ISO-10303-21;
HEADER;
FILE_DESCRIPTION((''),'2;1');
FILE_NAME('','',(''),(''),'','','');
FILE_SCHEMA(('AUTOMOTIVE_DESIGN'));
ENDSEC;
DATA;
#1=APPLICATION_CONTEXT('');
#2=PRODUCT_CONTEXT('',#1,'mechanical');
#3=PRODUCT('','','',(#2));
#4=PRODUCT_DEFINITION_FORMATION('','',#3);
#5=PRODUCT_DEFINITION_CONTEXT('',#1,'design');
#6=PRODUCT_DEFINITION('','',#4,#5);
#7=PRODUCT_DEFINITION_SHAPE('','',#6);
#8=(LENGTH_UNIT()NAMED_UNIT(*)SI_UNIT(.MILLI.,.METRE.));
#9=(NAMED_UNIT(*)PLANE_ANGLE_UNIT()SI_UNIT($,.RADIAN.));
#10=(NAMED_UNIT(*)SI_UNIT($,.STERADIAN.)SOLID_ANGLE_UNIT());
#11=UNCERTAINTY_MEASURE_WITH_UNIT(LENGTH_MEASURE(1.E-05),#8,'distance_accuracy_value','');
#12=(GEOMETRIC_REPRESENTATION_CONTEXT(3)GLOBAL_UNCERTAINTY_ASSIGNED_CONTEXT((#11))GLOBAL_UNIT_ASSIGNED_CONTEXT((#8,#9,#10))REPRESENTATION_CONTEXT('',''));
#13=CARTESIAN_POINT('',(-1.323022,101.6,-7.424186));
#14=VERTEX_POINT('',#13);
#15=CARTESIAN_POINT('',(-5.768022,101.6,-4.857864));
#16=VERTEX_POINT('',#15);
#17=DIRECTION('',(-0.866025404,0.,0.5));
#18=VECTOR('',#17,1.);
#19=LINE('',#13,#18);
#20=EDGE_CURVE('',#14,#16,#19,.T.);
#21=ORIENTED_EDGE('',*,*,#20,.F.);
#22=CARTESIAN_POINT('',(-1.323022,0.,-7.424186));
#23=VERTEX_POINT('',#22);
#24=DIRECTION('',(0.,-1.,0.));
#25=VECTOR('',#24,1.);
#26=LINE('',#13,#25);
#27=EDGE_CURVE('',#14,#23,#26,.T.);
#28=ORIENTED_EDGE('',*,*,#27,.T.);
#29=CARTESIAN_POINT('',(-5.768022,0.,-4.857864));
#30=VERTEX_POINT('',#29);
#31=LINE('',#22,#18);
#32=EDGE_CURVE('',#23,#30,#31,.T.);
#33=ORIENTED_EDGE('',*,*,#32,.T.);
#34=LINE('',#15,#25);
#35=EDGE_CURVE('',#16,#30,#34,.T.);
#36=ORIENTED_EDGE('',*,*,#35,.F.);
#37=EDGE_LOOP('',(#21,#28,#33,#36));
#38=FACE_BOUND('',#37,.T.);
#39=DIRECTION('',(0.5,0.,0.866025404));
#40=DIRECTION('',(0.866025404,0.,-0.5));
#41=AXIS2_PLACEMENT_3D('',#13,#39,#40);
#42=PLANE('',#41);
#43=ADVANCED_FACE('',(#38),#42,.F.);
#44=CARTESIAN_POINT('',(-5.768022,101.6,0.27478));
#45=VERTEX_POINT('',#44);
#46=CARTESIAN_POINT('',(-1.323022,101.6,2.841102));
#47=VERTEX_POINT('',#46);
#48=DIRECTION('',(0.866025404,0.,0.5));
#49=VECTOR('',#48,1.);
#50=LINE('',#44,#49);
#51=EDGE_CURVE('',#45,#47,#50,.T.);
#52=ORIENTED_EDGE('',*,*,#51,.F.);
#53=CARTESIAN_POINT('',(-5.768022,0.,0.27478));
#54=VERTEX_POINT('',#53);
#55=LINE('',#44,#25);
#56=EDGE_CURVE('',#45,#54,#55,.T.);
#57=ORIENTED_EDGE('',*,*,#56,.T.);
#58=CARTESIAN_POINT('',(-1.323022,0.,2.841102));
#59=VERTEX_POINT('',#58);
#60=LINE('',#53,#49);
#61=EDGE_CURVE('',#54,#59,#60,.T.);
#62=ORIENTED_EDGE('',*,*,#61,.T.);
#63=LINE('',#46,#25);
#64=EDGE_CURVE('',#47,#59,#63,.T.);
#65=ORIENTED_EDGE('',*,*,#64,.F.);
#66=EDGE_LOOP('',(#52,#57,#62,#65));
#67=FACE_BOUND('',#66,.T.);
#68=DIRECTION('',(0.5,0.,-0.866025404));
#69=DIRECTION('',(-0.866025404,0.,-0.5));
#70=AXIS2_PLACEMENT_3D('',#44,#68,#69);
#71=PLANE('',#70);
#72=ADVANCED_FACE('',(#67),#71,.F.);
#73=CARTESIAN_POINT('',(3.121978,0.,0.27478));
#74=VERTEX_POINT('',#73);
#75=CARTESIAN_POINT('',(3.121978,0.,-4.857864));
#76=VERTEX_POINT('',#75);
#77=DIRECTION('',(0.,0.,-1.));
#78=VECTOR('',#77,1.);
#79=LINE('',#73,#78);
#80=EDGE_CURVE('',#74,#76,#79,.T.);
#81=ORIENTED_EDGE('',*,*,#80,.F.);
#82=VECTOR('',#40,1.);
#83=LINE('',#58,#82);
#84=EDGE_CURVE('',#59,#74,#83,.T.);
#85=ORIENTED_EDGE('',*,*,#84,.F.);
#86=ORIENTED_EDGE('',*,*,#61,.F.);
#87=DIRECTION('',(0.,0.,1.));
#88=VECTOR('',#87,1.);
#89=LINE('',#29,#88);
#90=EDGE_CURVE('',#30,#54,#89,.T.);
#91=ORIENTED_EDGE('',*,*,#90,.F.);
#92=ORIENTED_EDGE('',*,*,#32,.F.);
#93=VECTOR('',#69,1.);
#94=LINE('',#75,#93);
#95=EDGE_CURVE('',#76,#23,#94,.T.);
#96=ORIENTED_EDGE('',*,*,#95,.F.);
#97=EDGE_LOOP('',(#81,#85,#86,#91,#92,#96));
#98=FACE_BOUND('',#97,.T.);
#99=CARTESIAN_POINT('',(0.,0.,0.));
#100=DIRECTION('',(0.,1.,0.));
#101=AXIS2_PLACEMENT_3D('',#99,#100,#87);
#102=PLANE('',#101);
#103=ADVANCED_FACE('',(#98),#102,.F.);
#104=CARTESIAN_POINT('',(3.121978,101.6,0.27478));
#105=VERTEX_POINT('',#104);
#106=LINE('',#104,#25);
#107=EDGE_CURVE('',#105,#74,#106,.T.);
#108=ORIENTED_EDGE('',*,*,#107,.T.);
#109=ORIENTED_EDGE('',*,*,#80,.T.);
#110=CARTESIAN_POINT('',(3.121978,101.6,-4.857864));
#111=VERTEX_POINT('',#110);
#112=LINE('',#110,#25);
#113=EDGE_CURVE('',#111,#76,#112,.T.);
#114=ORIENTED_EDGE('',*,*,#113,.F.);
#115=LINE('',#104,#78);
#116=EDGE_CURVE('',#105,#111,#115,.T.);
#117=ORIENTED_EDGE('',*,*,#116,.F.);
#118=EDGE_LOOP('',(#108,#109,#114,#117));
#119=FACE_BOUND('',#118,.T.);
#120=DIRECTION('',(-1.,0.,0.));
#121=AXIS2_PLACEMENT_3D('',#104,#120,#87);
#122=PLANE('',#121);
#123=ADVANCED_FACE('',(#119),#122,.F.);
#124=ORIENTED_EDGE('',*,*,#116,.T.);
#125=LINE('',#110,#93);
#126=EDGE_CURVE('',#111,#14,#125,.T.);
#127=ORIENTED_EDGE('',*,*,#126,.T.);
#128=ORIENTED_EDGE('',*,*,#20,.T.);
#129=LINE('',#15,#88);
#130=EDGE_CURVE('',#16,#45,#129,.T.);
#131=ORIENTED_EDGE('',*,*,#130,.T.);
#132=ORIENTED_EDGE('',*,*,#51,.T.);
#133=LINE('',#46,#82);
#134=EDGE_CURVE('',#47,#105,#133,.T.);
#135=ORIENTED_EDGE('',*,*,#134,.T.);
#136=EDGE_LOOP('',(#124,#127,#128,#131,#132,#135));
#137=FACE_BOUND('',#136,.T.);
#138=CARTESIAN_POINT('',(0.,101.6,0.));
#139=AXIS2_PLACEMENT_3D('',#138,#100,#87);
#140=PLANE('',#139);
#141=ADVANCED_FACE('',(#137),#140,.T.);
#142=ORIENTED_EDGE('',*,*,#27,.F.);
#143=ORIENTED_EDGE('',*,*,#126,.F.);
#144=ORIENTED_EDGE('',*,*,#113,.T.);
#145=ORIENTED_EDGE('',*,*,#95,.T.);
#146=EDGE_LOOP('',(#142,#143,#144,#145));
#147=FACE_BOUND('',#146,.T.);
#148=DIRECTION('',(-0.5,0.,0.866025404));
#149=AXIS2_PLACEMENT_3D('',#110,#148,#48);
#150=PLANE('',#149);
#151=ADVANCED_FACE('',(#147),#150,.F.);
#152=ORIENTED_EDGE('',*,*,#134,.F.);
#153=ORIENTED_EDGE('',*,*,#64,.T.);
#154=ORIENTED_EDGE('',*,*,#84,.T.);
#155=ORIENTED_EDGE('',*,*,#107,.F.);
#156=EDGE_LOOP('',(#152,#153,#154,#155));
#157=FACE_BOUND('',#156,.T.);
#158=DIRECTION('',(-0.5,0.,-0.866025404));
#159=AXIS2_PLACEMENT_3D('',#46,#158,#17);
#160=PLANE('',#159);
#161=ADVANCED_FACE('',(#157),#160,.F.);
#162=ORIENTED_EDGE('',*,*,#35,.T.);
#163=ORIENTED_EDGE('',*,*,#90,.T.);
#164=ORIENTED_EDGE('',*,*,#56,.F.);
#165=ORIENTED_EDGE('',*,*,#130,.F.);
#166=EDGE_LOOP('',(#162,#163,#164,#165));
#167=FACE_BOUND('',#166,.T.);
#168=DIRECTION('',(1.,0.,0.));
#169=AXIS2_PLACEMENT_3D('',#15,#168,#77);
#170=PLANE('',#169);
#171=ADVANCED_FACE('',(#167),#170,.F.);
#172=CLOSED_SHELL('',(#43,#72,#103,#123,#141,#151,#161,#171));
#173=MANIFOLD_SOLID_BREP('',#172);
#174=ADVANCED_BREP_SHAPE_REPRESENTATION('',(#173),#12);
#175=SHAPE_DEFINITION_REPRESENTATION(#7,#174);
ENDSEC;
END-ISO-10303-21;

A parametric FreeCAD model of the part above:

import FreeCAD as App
import Part
import Sketcher
Q = App.Units.Quantity

doc = App.newDocument("Part")
params = doc.addObject("Spreadsheet::Sheet", "Params")
for row, (alias, value) in enumerate([
    ("pad1_length", "4 in"),
], start=1):
    params.set(f"A{row}", alias)
    params.set(f"B{row}", "=" + value)
    params.setAlias(f"B{row}", alias)

body = doc.addObject("PartDesign::Body", "Body")

# Sketch on XZ plane
sketch1 = doc.addObject("Sketcher::SketchObject", "Sketch")
body.addObject(sketch1)
sketch1.AttachmentSupport = (doc.XZ_Plane, [""])
sketch1.MapMode = "FlatFace"
sketch1.addGeometry(Part.LineSegment(App.Vector(-1, -7, 0), App.Vector(-6, -5, 0)), False)
sketch1.addGeometry(Part.LineSegment(App.Vector(-6, -5, 0), App.Vector(-6, 0, 0)), False)
sketch1.addGeometry(Part.LineSegment(App.Vector(-6, 0, 0), App.Vector(-1, 3, 0)), False)
sketch1.addGeometry(Part.LineSegment(App.Vector(-1, 3, 0), App.Vector(3, 0, 0)), False)
sketch1.addGeometry(Part.LineSegment(App.Vector(3, 0, 0), App.Vector(3, -5, 0)), False)
sketch1.addGeometry(Part.LineSegment(App.Vector(3, -5, 0), App.Vector(-1, -7, 0)), False)
sketch1.addConstraint(Sketcher.Constraint("Coincident", 0, 2, 1, 1))
sketch1.addConstraint(Sketcher.Constraint("Coincident", 1, 2, 2, 1))
sketch1.addConstraint(Sketcher.Constraint("Coincident", 2, 2, 3, 1))
sketch1.addConstraint(Sketcher.Constraint("Coincident", 3, 2, 4, 1))
sketch1.addConstraint(Sketcher.Constraint("Coincident", 4, 2, 5, 1))
sketch1.addConstraint(Sketcher.Constraint("Coincident", 5, 2, 0, 1))
sketch1.addConstraint(Sketcher.Constraint("Vertical", 1))
sketch1.addConstraint(Sketcher.Constraint("Vertical", 4))
sketch1.addConstraint(Sketcher.Constraint("Parallel", 0, 3))
sketch1.addConstraint(Sketcher.Constraint("Parallel", 2, 5))
sketch1.addConstraint(Sketcher.Constraint("Horizontal", 1, 2, 3, 2))
sketch1.addConstraint(Sketcher.Constraint("Horizontal", 0, 2, 4, 2))
sketch1.addConstraint(Sketcher.Constraint("Vertical", 2, 2, 5, 2))
sketch1.addConstraint(Sketcher.Constraint("Angle", 0, Q("150 deg")))
sketch1.addConstraint(Sketcher.Constraint("DistanceX", 1, 2, 3, 2, Q("0.35 in")))
sketch1.addConstraint(Sketcher.Constraint("DistanceY", -1, 1, 2, 2, 2.841102))
sketch1.addConstraint(Sketcher.Constraint("DistanceY", 1, 1, 1, 2, 5.132644))
sketch1.addConstraint(Sketcher.Constraint("DistanceX", 0, 2, -1, 1, 5.768022))
pad1 = doc.addObject("PartDesign::Pad", "Pad")
body.addObject(pad1)
pad1.Profile = sketch1
pad1.setExpression("Length", "Params.pad1_length")
pad1.Reversed = True

doc.recompute()
